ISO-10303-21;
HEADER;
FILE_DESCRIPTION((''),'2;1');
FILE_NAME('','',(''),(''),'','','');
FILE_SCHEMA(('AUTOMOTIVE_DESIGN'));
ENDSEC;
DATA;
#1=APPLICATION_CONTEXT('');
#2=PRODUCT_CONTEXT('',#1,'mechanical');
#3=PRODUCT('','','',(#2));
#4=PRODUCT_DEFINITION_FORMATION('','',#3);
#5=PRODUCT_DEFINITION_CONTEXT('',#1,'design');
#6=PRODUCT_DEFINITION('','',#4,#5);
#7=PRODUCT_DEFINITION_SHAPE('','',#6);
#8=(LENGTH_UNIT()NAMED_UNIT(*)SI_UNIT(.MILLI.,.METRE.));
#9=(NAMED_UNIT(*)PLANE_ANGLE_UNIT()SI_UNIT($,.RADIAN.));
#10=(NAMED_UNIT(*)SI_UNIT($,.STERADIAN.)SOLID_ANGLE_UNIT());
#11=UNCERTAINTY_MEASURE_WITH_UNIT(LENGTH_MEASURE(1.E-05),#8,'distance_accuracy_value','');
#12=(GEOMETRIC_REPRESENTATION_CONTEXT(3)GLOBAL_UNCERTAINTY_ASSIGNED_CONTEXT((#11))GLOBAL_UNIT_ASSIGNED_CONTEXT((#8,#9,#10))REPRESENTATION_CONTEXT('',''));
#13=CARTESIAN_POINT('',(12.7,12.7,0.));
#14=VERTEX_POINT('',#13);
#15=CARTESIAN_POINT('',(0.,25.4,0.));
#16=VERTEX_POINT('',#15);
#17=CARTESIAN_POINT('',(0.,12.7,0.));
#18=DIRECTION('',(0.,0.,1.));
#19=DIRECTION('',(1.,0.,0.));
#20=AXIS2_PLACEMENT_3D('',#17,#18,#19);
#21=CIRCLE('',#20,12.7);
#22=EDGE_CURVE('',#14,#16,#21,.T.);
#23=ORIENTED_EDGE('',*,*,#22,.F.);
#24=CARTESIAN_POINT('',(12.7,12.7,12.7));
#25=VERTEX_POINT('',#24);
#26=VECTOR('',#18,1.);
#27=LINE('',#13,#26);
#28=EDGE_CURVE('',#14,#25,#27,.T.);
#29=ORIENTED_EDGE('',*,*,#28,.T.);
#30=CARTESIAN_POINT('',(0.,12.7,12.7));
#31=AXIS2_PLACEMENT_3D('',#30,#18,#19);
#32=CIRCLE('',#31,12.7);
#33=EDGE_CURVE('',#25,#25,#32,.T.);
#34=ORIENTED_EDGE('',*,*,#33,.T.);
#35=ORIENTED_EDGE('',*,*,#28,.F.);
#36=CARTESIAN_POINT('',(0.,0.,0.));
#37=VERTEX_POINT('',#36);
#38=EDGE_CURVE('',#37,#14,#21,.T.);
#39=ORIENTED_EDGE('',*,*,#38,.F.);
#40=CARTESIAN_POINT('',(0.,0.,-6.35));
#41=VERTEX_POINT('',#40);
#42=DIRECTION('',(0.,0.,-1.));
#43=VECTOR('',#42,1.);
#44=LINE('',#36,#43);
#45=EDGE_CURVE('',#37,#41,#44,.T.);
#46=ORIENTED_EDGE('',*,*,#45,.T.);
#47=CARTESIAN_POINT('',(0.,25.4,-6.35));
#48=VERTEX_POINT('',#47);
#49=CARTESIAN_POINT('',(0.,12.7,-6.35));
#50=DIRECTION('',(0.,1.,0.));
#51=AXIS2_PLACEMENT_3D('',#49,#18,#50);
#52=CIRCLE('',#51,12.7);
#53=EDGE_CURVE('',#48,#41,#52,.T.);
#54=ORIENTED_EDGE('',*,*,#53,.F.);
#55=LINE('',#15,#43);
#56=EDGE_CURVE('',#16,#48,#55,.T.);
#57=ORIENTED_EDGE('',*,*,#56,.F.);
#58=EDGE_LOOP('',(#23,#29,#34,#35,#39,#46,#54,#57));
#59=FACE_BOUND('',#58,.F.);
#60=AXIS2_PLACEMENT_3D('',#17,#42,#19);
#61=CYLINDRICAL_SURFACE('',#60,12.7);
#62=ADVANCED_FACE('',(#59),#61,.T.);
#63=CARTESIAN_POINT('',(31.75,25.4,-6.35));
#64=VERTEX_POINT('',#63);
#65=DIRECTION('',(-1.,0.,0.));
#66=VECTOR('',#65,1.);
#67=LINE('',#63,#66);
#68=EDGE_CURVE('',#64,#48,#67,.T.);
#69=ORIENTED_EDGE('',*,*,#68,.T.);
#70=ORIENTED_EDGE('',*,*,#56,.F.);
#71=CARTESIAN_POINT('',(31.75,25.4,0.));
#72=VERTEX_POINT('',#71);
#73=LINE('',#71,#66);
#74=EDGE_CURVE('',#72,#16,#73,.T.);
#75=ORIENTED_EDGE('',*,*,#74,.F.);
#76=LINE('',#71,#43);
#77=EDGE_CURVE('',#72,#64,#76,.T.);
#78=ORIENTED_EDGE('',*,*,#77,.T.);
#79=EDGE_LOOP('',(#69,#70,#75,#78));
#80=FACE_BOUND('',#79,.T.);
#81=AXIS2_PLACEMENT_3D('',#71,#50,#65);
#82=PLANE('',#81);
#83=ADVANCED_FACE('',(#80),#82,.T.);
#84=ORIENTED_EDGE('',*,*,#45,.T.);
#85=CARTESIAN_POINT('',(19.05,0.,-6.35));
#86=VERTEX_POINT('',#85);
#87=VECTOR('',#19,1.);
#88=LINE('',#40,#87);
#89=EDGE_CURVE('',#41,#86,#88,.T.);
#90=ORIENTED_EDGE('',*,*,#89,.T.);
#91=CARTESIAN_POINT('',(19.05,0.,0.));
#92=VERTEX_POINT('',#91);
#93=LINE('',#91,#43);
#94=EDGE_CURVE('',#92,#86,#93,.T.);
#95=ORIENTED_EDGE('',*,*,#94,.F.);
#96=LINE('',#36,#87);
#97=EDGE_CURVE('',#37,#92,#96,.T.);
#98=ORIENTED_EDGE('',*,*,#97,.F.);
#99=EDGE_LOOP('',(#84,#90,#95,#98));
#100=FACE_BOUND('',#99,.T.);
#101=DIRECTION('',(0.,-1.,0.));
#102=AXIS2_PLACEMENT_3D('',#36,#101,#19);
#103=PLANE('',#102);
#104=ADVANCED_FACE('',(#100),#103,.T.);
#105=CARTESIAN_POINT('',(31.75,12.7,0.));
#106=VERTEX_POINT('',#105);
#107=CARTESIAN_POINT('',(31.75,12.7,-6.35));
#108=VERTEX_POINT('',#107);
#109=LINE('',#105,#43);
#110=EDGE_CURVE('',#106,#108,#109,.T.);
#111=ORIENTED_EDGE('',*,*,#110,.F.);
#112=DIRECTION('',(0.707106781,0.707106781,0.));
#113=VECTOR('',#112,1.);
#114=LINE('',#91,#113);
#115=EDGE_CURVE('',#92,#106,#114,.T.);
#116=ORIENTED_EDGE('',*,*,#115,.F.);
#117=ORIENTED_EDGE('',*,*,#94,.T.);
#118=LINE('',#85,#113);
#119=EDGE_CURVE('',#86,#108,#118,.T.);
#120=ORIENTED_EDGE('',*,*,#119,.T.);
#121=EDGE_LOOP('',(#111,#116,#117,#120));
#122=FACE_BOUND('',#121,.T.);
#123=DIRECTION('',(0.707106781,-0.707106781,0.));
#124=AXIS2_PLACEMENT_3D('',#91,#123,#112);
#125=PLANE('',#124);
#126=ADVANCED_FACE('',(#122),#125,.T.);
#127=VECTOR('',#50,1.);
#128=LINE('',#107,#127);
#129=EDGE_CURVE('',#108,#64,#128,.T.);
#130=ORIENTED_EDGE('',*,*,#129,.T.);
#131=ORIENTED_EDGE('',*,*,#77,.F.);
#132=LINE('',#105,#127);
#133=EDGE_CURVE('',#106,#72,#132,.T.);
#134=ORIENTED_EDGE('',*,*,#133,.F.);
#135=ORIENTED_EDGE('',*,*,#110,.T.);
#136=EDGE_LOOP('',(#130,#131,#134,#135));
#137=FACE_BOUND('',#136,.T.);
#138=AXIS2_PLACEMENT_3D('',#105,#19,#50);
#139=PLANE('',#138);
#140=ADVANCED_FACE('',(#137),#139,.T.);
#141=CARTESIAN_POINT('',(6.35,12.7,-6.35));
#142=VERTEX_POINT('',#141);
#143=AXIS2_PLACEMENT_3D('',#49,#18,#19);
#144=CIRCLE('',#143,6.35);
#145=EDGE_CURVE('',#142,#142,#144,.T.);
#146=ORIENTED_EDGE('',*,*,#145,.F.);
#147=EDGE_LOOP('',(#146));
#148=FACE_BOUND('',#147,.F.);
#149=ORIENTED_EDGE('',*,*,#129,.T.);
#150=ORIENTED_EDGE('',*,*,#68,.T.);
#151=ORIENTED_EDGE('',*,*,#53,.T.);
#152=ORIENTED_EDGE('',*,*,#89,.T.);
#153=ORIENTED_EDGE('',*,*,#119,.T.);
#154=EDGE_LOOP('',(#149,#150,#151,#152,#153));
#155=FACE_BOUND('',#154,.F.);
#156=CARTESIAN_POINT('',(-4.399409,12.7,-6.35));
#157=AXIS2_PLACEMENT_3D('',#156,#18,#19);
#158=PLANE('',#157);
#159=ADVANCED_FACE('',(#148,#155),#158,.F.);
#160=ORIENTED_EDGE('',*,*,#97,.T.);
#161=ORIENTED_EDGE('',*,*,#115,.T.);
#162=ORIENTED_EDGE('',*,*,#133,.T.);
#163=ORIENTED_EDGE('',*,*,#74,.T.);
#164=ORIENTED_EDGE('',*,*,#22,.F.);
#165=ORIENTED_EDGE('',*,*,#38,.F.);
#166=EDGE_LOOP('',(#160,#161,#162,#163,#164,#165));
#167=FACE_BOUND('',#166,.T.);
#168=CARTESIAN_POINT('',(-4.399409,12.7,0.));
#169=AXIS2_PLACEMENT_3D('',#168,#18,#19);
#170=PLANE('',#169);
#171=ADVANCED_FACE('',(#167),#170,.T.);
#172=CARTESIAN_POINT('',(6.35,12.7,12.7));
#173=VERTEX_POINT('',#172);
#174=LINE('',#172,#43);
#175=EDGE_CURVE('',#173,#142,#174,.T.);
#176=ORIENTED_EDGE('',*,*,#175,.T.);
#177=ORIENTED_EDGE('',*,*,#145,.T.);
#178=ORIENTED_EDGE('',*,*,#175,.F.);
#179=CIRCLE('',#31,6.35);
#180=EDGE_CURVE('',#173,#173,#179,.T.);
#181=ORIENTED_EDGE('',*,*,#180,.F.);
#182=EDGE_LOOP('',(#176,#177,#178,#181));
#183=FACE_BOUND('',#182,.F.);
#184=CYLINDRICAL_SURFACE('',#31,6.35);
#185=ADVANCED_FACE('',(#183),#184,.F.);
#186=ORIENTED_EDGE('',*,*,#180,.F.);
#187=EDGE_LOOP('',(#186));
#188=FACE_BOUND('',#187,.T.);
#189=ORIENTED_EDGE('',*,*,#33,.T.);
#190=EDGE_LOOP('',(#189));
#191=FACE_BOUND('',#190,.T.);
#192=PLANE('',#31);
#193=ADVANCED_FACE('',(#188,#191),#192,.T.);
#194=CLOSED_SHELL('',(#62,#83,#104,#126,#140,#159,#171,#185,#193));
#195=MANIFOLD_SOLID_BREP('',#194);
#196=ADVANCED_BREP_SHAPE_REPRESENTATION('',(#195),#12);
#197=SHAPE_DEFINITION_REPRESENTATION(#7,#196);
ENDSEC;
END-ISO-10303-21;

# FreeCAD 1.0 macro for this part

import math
import FreeCAD as App
import Part
import Sketcher
from FreeCAD import Vector
Q = App.Units.Quantity

doc = App.newDocument("Part")
params = doc.addObject("Spreadsheet::Sheet", "Params")
for row, (alias, value) in enumerate([
    ("sketch1_height", "1 in"),
    ("sketch1_height2", "0.5 in"),
    ("sketch1_width", "0.75 in"),
    ("pad1_length", "0.25 in"),
    ("sketch2_radius", "0.5 in"),
    ("pad2_length", "0.25 in"),
    ("sketch3_diameter", "1 in"),
    ("pad3_length", "0.5 in"),
    ("sketch4_diameter", "0.5 in"),
    ("pocket1_length", "0.75 in"),
], start=1):
    params.set(f"A{row}", alias)
    params.set(f"B{row}", "=" + value)
    params.setAlias(f"B{row}", alias)

body = doc.addObject("PartDesign::Body", "Body")

# Sketch on XY plane
sketch1 = doc.addObject("Sketcher::SketchObject", "Sketch")
body.addObject(sketch1)
sketch1.AttachmentSupport = (doc.XY_Plane, [""])
sketch1.MapMode = "FlatFace"
sketch1.addGeometry(Part.LineSegment(Vector(0, 25, 0), Vector(0, 0, 0)), False)
sketch1.addGeometry(Part.LineSegment(Vector(0, 0, 0), Vector(19, 0, 0)), False)
sketch1.addGeometry(Part.LineSegment(Vector(19, 0, 0), Vector(32, 13, 0)), False)
sketch1.addGeometry(Part.LineSegment(Vector(32, 13, 0), Vector(32, 25, 0)), False)
sketch1.addGeometry(Part.LineSegment(Vector(32, 25, 0), Vector(0, 25, 0)), False)
sketch1.addConstraint(Sketcher.Constraint("Coincident", 0, 2, 1, 1))
sketch1.addConstraint(Sketcher.Constraint("Coincident", 1, 2, 2, 1))
sketch1.addConstraint(Sketcher.Constraint("Coincident", 2, 2, 3, 1))
sketch1.addConstraint(Sketcher.Constraint("Coincident", 3, 2, 4, 1))
sketch1.addConstraint(Sketcher.Constraint("Coincident", 4, 2, 0, 1))
sketch1.addConstraint(Sketcher.Constraint("Vertical", 0))
sketch1.addConstraint(Sketcher.Constraint("Horizontal", 1))
sketch1.addConstraint(Sketcher.Constraint("Vertical", 3))
sketch1.addConstraint(Sketcher.Constraint("Horizontal", 4))
sketch1.addConstraint(Sketcher.Constraint("Coincident", 0, 2, -1, 1))
sketch1.addConstraint(Sketcher.Constraint("DistanceY", 0, 2, 0, 1, Q("1 in")))
sketch1.addConstraint(Sketcher.Constraint("DistanceY", 3, 1, 3, 2, Q("0.5 in")))
sketch1.addConstraint(Sketcher.Constraint("Angle", 2, Q("45 deg")))
sketch1.addConstraint(Sketcher.Constraint("DistanceX", 1, 1, 1, 2, Q("0.75 in")))
sketch1.setExpression("Constraints[10]", "Params.sketch1_height")
sketch1.setExpression("Constraints[11]", "Params.sketch1_height2")
sketch1.setExpression("Constraints[13]", "Params.sketch1_width")
pad1 = doc.addObject("PartDesign::Pad", "Pad")
body.addObject(pad1)
pad1.Profile = sketch1
pad1.setExpression("Length", "Params.pad1_length")
pad1.Reversed = True

# Sketch on XY plane
sketch2 = doc.addObject("Sketcher::SketchObject", "Sketch001")
body.addObject(sketch2)
sketch2.AttachmentSupport = (doc.XY_Plane, [""])
sketch2.MapMode = "FlatFace"
sketch2.addGeometry(Part.LineSegment(Vector(0, 0, 0), Vector(0, 25, 0)), False)
sketch2.addGeometry(Part.ArcOfCircle(Part.Circle(Vector(0, 13, 0), Vector(0, 0, 1), 13), math.radians(90), math.radians(270)), False)
sketch2.addConstraint(Sketcher.Constraint("Coincident", 0, 1, 1, 2))
sketch2.addConstraint(Sketcher.Constraint("Coincident", 1, 1, 0, 2))
sketch2.addConstraint(Sketcher.Constraint("Vertical", 0))
sketch2.addConstraint(Sketcher.Constraint("Coincident", 0, 1, -1, 1))
sketch2.addConstraint(Sketcher.Constraint("PointOnObject", 1, 3, -2))
sketch2.addConstraint(Sketcher.Constraint("Radius", 1, Q("0.5 in")))
sketch2.setExpression("Constraints[5]", "Params.sketch2_radius")
pad2 = doc.addObject("PartDesign::Pad", "Pad001")
body.addObject(pad2)
pad2.Profile = sketch2
pad2.setExpression("Length", "Params.pad2_length")
pad2.Reversed = True

# Sketch on XY plane
sketch3 = doc.addObject("Sketcher::SketchObject", "Sketch002")
body.addObject(sketch3)
sketch3.AttachmentSupport = (doc.XY_Plane, [""])
sketch3.MapMode = "FlatFace"
sketch3.addGeometry(Part.Circle(Vector(0, 13, 0), Vector(0, 0, 1), 13), False)
sketch3.addConstraint(Sketcher.Constraint("PointOnObject", 0, 3, -2))
sketch3.addConstraint(Sketcher.Constraint("Diameter", 0, Q("1 in")))
sketch3.addConstraint(Sketcher.Constraint("DistanceY", -1, 1, 0, 3, Q("0.5 in")))
sketch3.setExpression("Constraints[1]", "Params.sketch3_diameter")
pad3 = doc.addObject("PartDesign::Pad", "Pad002")
body.addObject(pad3)
pad3.Profile = sketch3
pad3.setExpression("Length", "Params.pad3_length")

# Sketch on XY plane
sketch4 = doc.addObject("Sketcher::SketchObject", "Sketch003")
body.addObject(sketch4)
sketch4.AttachmentSupport = (doc.XY_Plane, [""])
sketch4.MapMode = "FlatFace"
sketch4.AttachmentOffset = App.Placement(Vector(0, 0, 0.5 * 25.4), App.Rotation())
sketch4.addGeometry(Part.Circle(Vector(0, 13, 0), Vector(0, 0, 1), 6), False)
sketch4.addConstraint(Sketcher.Constraint("PointOnObject", 0, 3, -2))
sketch4.addConstraint(Sketcher.Constraint("Diameter", 0, Q("0.5 in")))
sketch4.addConstraint(Sketcher.Constraint("DistanceY", -1, 1, 0, 3, Q("0.5 in")))
sketch4.setExpression("Constraints[1]", "Params.sketch4_diameter")
pocket1 = doc.addObject("PartDesign::Pocket", "Pocket")
body.addObject(pocket1)
pocket1.Profile = sketch4
pocket1.setExpression("Length", "Params.pocket1_length")

doc.recompute()
